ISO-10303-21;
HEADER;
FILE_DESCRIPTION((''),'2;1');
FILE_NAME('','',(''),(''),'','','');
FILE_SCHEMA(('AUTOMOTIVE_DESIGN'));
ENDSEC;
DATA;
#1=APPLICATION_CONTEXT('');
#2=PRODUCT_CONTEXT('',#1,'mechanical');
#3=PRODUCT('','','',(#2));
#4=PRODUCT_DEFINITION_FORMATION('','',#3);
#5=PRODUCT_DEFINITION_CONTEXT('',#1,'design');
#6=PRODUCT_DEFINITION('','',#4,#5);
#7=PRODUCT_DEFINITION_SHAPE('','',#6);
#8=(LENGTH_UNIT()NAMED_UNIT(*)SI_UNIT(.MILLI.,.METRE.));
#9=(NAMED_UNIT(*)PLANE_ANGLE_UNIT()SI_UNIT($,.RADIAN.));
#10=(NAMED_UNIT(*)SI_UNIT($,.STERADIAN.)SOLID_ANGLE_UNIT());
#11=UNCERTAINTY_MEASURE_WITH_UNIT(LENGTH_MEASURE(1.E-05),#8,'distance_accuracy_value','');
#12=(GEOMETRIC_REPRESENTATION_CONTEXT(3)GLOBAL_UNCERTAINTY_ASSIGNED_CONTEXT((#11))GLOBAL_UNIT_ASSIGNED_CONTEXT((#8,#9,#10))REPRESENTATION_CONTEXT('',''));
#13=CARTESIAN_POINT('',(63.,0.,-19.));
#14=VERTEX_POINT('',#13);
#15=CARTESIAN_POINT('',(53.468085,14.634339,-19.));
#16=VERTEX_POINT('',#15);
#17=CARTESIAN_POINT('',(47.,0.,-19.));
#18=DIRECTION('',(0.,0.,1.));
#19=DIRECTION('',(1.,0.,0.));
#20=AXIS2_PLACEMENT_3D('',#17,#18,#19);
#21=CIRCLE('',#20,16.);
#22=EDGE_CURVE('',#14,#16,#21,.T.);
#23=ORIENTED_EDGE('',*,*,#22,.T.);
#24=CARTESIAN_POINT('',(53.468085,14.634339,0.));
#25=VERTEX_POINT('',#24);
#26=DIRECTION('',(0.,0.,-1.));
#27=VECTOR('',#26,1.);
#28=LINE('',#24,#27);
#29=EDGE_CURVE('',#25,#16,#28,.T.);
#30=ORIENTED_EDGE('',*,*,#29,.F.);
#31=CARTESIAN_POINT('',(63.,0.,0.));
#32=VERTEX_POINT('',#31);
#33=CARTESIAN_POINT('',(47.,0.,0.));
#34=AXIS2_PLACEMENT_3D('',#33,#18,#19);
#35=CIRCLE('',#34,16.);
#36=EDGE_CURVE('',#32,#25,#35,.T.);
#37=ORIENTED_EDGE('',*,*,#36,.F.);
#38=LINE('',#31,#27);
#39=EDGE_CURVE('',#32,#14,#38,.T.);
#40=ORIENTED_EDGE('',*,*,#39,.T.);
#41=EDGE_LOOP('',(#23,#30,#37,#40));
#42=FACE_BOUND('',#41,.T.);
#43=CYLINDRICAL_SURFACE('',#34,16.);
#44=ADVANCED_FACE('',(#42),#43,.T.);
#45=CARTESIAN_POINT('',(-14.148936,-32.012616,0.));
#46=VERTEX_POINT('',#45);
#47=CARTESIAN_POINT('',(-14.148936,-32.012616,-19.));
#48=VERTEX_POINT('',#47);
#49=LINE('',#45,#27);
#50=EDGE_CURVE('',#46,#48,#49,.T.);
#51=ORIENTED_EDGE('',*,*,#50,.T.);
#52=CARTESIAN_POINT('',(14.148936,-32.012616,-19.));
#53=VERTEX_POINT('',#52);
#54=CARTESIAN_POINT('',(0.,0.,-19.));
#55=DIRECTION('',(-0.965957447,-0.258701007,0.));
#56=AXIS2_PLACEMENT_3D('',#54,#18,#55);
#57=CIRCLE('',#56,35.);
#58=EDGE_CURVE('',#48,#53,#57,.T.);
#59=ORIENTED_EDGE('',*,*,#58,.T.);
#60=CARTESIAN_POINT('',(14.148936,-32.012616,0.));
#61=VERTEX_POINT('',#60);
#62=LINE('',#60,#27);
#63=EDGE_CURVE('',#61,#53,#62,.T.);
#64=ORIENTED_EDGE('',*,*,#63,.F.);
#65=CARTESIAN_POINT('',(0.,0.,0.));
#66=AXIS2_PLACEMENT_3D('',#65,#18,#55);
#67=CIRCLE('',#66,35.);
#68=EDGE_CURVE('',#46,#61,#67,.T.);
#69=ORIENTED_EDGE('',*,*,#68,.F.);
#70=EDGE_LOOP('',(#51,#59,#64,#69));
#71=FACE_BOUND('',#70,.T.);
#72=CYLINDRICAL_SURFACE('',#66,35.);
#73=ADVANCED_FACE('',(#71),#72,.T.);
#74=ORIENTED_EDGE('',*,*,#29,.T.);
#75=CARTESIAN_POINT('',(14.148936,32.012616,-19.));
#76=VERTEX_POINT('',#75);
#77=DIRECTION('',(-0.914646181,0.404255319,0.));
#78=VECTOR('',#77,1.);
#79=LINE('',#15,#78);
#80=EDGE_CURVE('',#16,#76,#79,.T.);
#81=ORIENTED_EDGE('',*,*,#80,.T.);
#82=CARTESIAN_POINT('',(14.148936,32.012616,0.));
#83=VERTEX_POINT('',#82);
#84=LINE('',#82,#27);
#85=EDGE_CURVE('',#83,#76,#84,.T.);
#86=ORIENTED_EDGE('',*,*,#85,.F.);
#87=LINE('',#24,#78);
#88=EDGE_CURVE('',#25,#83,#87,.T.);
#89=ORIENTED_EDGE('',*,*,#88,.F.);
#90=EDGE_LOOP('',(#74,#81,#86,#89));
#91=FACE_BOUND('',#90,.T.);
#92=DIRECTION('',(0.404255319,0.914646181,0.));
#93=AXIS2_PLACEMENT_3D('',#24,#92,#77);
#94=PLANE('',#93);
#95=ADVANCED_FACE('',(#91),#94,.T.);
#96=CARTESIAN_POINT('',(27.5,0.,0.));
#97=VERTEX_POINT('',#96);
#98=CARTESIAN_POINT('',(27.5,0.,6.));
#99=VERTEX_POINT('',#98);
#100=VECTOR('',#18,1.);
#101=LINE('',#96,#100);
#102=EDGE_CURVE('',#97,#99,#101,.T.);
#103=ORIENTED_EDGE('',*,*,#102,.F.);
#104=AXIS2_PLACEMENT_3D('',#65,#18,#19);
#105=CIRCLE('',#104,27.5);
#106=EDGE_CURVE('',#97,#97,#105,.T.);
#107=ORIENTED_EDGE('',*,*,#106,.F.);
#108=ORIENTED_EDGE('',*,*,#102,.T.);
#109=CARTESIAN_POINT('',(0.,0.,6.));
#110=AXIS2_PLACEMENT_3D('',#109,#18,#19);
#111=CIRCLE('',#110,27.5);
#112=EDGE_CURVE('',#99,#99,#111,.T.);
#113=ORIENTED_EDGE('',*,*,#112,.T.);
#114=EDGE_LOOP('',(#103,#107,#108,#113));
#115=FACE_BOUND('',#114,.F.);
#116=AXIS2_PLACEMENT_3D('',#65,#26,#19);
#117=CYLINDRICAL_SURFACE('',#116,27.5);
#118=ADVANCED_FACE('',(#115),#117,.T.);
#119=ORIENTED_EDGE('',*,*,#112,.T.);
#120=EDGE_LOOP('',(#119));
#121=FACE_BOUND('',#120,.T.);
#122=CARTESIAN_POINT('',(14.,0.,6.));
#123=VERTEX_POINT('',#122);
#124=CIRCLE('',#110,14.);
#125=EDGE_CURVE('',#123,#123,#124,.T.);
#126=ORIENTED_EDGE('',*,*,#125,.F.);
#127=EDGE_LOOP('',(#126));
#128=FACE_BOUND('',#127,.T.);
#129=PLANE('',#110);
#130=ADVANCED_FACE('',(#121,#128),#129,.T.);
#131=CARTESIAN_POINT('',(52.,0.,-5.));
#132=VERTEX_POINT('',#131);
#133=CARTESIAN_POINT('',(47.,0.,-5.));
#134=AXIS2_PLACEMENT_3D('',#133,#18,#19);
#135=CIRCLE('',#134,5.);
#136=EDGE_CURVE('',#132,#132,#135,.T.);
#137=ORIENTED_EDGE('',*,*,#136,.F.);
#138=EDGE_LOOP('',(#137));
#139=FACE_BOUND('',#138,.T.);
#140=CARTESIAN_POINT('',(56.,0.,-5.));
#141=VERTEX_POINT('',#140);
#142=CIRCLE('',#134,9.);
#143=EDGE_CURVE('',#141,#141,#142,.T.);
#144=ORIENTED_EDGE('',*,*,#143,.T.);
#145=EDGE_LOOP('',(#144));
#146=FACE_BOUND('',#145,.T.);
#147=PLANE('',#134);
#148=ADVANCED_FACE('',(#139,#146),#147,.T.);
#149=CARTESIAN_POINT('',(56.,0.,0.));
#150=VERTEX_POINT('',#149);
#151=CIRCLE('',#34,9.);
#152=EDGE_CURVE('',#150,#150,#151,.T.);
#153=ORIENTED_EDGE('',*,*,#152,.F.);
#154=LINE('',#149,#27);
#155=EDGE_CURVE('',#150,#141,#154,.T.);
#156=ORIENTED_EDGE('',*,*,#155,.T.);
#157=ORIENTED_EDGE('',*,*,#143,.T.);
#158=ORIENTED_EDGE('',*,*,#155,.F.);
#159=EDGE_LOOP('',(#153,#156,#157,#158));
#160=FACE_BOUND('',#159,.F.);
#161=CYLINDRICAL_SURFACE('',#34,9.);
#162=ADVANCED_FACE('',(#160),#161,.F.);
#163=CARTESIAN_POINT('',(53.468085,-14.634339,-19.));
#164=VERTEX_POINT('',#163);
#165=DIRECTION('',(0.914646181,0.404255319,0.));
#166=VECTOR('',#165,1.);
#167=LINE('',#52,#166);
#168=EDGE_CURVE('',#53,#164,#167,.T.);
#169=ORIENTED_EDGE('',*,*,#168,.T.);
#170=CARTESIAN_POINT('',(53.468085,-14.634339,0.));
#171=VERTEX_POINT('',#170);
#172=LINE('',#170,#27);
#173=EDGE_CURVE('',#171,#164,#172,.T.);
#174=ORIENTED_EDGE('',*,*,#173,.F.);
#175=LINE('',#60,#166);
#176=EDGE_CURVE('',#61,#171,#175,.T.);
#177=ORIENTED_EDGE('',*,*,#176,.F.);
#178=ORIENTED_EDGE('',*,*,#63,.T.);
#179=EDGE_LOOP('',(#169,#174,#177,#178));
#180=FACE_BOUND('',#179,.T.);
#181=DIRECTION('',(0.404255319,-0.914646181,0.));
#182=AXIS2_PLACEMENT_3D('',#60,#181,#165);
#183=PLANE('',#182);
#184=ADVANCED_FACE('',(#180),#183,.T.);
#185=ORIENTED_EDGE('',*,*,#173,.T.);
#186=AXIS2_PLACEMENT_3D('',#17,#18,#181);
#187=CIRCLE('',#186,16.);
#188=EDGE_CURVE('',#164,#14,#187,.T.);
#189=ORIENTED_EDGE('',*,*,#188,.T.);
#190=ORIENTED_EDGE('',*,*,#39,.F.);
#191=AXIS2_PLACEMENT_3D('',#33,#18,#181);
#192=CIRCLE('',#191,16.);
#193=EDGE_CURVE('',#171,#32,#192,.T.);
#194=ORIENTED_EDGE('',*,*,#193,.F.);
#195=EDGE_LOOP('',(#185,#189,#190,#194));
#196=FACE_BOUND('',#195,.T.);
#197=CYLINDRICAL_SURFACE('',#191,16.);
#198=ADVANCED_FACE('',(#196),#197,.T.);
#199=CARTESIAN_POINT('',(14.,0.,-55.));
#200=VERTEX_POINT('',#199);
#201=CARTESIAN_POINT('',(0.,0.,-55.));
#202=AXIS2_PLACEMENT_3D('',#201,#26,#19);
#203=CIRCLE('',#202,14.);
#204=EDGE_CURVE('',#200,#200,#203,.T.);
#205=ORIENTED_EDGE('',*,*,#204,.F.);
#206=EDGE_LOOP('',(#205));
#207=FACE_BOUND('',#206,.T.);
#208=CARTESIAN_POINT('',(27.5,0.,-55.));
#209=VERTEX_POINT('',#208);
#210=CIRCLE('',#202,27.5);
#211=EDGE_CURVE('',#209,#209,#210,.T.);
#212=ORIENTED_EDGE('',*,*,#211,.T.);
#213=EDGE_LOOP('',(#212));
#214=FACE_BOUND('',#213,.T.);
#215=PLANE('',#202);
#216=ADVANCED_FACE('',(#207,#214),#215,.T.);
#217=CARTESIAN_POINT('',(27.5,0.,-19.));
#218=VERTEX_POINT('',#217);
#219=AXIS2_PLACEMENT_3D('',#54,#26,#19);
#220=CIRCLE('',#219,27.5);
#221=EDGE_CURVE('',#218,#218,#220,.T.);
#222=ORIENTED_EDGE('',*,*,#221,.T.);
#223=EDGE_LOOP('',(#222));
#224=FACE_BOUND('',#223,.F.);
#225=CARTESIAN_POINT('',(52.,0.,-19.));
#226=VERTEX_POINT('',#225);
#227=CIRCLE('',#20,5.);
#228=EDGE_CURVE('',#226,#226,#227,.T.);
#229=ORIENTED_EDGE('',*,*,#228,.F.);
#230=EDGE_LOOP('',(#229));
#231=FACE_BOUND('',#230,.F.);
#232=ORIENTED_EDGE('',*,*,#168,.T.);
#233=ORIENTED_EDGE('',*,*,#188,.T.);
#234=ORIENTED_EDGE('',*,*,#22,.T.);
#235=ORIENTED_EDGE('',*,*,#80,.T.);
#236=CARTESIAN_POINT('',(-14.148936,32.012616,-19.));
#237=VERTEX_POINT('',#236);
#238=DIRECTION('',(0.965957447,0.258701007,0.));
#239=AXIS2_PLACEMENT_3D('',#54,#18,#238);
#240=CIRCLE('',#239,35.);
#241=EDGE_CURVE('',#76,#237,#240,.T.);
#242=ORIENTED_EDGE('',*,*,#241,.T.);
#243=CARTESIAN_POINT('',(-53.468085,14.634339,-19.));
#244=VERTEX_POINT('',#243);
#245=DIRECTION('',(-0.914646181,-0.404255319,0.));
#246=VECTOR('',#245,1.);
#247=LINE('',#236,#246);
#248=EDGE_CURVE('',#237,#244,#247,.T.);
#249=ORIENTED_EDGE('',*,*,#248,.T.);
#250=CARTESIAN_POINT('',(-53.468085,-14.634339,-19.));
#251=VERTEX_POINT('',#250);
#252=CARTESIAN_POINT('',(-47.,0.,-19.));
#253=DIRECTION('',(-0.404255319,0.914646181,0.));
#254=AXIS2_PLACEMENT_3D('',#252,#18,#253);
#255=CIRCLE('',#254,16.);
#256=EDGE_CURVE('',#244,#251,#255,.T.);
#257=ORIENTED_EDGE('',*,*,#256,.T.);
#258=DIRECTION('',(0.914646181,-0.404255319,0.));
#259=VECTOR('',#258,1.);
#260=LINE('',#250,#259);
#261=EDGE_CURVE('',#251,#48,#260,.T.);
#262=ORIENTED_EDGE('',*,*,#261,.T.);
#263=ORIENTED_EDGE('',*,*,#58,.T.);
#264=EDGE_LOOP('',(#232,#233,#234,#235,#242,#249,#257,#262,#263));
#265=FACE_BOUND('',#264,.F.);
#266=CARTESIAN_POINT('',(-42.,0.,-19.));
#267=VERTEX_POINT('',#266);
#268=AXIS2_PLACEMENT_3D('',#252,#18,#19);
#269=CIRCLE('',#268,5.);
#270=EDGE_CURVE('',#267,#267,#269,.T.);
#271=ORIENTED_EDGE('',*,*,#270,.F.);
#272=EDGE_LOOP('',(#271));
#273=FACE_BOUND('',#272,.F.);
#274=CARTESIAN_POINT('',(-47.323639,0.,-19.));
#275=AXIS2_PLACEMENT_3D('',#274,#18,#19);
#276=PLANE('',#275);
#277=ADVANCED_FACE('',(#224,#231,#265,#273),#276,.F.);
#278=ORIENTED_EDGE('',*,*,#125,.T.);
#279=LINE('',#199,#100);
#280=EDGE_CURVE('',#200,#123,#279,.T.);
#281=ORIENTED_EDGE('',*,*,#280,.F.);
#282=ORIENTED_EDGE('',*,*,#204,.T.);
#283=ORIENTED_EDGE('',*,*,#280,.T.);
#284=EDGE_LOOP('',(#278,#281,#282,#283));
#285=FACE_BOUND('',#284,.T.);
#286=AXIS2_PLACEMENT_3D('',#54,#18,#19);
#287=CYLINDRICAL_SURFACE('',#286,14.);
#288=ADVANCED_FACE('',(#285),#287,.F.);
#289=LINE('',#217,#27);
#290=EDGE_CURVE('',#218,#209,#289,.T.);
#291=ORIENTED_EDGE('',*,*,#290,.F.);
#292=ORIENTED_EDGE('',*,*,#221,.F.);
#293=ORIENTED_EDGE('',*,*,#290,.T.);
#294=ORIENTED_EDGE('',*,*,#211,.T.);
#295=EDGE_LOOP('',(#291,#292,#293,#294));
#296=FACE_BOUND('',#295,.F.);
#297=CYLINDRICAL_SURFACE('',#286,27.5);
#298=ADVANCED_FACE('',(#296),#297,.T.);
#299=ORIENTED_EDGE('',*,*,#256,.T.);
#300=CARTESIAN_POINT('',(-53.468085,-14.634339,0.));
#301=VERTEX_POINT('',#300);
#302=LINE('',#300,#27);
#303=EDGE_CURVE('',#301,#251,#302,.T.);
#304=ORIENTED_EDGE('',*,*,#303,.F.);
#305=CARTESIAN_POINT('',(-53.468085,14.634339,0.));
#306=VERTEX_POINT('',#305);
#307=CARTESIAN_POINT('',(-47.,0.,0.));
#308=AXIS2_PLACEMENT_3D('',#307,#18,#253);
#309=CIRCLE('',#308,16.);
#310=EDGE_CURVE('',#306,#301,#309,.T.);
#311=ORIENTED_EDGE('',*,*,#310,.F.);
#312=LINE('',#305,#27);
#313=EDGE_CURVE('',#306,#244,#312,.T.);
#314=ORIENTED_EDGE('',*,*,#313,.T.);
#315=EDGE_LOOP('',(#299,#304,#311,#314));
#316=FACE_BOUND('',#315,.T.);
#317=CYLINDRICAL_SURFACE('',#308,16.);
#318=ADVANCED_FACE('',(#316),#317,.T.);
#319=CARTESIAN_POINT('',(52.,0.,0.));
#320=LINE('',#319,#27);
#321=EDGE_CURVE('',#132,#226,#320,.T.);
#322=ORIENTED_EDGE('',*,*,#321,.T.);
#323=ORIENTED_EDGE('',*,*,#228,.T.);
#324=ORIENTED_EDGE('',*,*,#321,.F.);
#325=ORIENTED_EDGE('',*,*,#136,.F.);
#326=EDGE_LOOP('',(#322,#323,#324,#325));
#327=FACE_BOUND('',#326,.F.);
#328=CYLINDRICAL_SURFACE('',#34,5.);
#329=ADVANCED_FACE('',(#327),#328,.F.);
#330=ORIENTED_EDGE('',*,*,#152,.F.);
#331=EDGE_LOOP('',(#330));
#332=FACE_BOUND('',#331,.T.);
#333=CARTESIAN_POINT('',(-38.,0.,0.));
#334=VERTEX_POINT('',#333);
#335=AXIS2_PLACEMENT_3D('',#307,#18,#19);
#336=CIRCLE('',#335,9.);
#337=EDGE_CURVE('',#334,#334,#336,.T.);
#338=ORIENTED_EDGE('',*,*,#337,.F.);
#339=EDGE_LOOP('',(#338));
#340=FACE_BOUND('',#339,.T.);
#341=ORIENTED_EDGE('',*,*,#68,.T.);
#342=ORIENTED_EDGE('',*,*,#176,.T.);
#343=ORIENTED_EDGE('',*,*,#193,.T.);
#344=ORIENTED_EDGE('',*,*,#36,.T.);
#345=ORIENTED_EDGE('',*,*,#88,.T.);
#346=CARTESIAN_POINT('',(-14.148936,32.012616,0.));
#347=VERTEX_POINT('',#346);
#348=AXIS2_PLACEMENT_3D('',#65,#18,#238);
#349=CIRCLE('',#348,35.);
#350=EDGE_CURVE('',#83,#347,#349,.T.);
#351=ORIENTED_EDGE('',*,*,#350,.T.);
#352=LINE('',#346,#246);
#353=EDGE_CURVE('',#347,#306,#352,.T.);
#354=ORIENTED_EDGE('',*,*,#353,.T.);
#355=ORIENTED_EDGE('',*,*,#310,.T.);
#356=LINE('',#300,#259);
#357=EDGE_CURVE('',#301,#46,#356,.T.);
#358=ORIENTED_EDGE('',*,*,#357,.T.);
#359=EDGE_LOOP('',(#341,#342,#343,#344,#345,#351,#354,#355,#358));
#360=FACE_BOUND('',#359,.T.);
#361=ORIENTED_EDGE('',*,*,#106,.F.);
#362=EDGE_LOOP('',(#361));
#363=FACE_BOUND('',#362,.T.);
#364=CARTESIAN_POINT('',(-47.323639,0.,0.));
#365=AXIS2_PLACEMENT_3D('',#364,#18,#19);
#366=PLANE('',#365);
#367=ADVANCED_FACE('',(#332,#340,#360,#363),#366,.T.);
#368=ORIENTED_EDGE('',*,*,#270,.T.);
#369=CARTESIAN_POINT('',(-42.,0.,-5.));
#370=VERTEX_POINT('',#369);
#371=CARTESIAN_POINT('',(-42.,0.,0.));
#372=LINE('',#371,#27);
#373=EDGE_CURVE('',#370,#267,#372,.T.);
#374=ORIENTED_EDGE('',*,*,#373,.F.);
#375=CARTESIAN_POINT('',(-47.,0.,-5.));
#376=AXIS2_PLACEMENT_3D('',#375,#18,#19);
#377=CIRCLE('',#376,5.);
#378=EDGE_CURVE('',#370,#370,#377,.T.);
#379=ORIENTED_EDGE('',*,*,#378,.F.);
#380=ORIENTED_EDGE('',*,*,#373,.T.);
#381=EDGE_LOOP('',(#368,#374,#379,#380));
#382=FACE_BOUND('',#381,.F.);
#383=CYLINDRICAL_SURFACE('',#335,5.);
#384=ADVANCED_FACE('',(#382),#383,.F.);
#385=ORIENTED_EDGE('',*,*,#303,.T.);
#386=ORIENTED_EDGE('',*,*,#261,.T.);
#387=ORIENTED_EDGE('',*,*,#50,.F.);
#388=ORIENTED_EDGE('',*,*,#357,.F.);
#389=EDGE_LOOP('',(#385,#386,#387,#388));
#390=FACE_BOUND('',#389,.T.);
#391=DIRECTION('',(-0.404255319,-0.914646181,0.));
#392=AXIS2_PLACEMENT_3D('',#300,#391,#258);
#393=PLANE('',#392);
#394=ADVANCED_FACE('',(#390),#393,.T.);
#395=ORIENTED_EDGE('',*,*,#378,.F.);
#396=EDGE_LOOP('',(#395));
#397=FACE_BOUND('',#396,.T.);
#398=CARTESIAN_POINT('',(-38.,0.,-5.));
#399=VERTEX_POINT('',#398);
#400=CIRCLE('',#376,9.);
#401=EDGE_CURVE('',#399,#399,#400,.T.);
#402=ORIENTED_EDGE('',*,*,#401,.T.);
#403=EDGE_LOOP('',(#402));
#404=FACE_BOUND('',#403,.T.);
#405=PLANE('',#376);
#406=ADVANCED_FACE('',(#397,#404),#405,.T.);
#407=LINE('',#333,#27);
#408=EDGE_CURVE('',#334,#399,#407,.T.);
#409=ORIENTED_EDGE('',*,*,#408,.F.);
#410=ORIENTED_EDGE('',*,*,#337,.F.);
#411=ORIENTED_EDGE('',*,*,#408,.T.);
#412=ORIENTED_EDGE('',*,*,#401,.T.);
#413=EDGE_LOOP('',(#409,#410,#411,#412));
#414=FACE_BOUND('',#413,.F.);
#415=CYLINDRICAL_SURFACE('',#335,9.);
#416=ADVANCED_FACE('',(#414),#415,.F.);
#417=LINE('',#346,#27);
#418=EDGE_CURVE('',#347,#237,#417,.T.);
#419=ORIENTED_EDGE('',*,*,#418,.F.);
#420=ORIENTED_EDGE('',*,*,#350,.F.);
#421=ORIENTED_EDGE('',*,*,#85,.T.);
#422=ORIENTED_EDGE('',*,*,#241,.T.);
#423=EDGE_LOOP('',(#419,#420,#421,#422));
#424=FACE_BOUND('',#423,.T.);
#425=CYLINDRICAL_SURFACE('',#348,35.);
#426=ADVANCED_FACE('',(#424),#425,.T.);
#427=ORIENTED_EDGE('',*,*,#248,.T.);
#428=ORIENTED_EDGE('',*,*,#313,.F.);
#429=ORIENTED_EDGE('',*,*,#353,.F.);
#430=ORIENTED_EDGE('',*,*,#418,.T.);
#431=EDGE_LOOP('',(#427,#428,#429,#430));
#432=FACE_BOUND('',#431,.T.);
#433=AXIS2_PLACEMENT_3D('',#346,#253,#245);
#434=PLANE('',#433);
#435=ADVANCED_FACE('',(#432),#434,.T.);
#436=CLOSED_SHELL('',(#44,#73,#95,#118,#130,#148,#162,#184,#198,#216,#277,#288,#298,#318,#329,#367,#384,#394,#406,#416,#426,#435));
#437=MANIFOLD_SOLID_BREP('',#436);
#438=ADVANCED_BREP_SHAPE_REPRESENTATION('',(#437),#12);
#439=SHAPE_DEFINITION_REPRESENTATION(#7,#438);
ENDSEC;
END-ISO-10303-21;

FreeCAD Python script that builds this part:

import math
import FreeCAD as App
import Part
import Sketcher
Q = App.Units.Quantity

doc = App.newDocument("Part")
body = doc.addObject("PartDesign::Body", "Body")

# Sketch on XY plane
sketch1 = body.newObject("Sketcher::SketchObject", "Sketch")
sketch1.AttachmentSupport = (doc.getObject("XY_Plane"), [""])
sketch1.MapMode = "FlatFace"
sketch1.addGeometry(Part.LineSegment(App.Vector(-14, 32, 0), App.Vector(-53, 15, 0)), False)
sketch1.addGeometry(Part.ArcOfCircle(Part.Circle(App.Vector(-47, 0, 0), App.Vector(0, 0, 1), 16), math.radians(114), math.radians(246)), False)
sketch1.addGeometry(Part.LineSegment(App.Vector(-53, -15, 0), App.Vector(-14, -32, 0)), False)
sketch1.addGeometry(Part.ArcOfCircle(Part.Circle(App.Vector(0, 0, 0), App.Vector(0, 0, 1), 35), math.radians(-114), math.radians(-66)), False)
sketch1.addGeometry(Part.LineSegment(App.Vector(14, -32, 0), App.Vector(53, -15, 0)), False)
sketch1.addGeometry(Part.ArcOfCircle(Part.Circle(App.Vector(47, 0, 0), App.Vector(0, 0, 1), 16), math.radians(-66), math.radians(0)), False)
sketch1.addGeometry(Part.ArcOfCircle(Part.Circle(App.Vector(47, 0, 0), App.Vector(0, 0, 1), 16), math.radians(0), math.radians(66)), False)
sketch1.addGeometry(Part.LineSegment(App.Vector(53, 15, 0), App.Vector(14, 32, 0)), False)
sketch1.addGeometry(Part.ArcOfCircle(Part.Circle(App.Vector(0, 0, 0), App.Vector(0, 0, 1), 35), math.radians(66), math.radians(114)), False)
sketch1.addGeometry(Part.Circle(App.Vector(0, 0, 0), App.Vector(0, 0, 1), 14), False)
sketch1.addConstraint(Sketcher.Constraint("Tangent", 0, 2, 1, 1))
sketch1.addConstraint(Sketcher.Constraint("Tangent", 1, 2, 2, 1))
sketch1.addConstraint(Sketcher.Constraint("Tangent", 2, 2, 3, 1))
sketch1.addConstraint(Sketcher.Constraint("Tangent", 3, 2, 4, 1))
sketch1.addConstraint(Sketcher.Constraint("Tangent", 4, 2, 5, 1))
sketch1.addConstraint(Sketcher.Constraint("Tangent", 5, 2, 6, 1))
sketch1.addConstraint(Sketcher.Constraint("Tangent", 6, 2, 7, 1))
sketch1.addConstraint(Sketcher.Constraint("Tangent", 7, 2, 8, 1))
sketch1.addConstraint(Sketcher.Constraint("Tangent", 8, 2, 0, 1))
sketch1.addConstraint(Sketcher.Constraint("Coincident", 3, 3, -1, 1))
sketch1.addConstraint(Sketcher.Constraint("Coincident", 8, 3, -1, 1))
sketch1.addConstraint(Sketcher.Constraint("Coincident", 9, 3, -1, 1))
sketch1.addConstraint(Sketcher.Constraint("Equal", 1, 5))
sketch1.addConstraint(Sketcher.Constraint("Equal", 5, 6))
sketch1.addConstraint(Sketcher.Constraint("Equal", 3, 8))
sketch1.addConstraint(Sketcher.Constraint("Symmetric", 1, 3, 5, 3, -1, 1))
sketch1.addConstraint(Sketcher.Constraint("PointOnObject", 1, 3, -1))
sketch1.addConstraint(Sketcher.Constraint("PointOnObject", 5, 2, -1))
sketch1.addConstraint(Sketcher.Constraint("Diameter", 9, Q("28 mm")))
sketch1.addConstraint(Sketcher.Constraint("Radius", 1, Q("16 mm")))
sketch1.addConstraint(Sketcher.Constraint("Radius", 3, Q("35 mm")))
sketch1.addConstraint(Sketcher.Constraint("DistanceX", 1, 3, -1, 1, Q("47 mm")))
pad1 = body.newObject("PartDesign::Pad", "Pad")
pad1.Profile = sketch1
pad1.Length = 19
pad1.Reversed = True

# Sketch on XY plane
sketch2 = body.newObject("Sketcher::SketchObject", "Sketch001")
sketch2.AttachmentSupport = (doc.getObject("XY_Plane"), [""])
sketch2.MapMode = "FlatFace"
sketch2.addGeometry(Part.Circle(App.Vector(0, 0, 0), App.Vector(0, 0, 1), 28), False)
sketch2.addGeometry(Part.Circle(App.Vector(0, 0, 0), App.Vector(0, 0, 1), 14), False)
sketch2.addConstraint(Sketcher.Constraint("Coincident", 0, 3, -1, 1))
sketch2.addConstraint(Sketcher.Constraint("Coincident", 1, 3, -1, 1))
sketch2.addConstraint(Sketcher.Constraint("Diameter", 0, Q("55 mm")))
sketch2.addConstraint(Sketcher.Constraint("Diameter", 1, Q("28 mm")))
pad2 = body.newObject("PartDesign::Pad", "Pad001")
pad2.Profile = sketch2
pad2.Length = 6

# Sketch on XY plane
sketch3 = body.newObject("Sketcher::SketchObject", "Sketch002")
sketch3.AttachmentSupport = (doc.getObject("XY_Plane"), [""])
sketch3.MapMode = "FlatFace"
sketch3.AttachmentOffset = App.Placement(App.Vector(0, 0, -19), App.Rotation())
sketch3.addGeometry(Part.Circle(App.Vector(0, 0, 0), App.Vector(0, 0, 1), 28), False)
sketch3.addGeometry(Part.Circle(App.Vector(0, 0, 0), App.Vector(0, 0, 1), 14), False)
sketch3.addConstraint(Sketcher.Constraint("Coincident", 0, 3, -1, 1))
sketch3.addConstraint(Sketcher.Constraint("Coincident", 1, 3, -1, 1))
sketch3.addConstraint(Sketcher.Constraint("Diameter", 0, Q("55 mm")))
sketch3.addConstraint(Sketcher.Constraint("Diameter", 1, Q("28 mm")))
pad3 = body.newObject("PartDesign::Pad", "Pad002")
pad3.Profile = sketch3
pad3.Length = 36
pad3.Reversed = True

# Sketch on XY plane
sketch4 = body.newObject("Sketcher::SketchObject", "Sketch003")
sketch4.AttachmentSupport = (doc.getObject("XY_Plane"), [""])
sketch4.MapMode = "FlatFace"
sketch4.addGeometry(Part.Circle(App.Vector(-47, 0, 0), App.Vector(0, 0, 1), 5), False)
sketch4.addGeometry(Part.Circle(App.Vector(47, 0, 0), App.Vector(0, 0, 1), 5), False)
sketch4.addConstraint(Sketcher.Constraint("Equal", 0, 1))
sketch4.addConstraint(Sketcher.Constraint("Symmetric", 0, 3, 1, 3, -1, 1))
sketch4.addConstraint(Sketcher.Constraint("PointOnObject", 0, 3, -1))
sketch4.addConstraint(Sketcher.Constraint("Diameter", 0, Q("10 mm")))
sketch4.addConstraint(Sketcher.Constraint("DistanceX", 0, 3, -1, 1, Q("47 mm")))
pocket1 = body.newObject("PartDesign::Pocket", "Pocket")
pocket1.Profile = sketch4
pocket1.Length = 25

# Sketch on XY plane
sketch5 = body.newObject("Sketcher::SketchObject", "Sketch004")
sketch5.AttachmentSupport = (doc.getObject("XY_Plane"), [""])
sketch5.MapMode = "FlatFace"
sketch5.addGeometry(Part.Circle(App.Vector(-47, 0, 0), App.Vector(0, 0, 1), 9), False)
sketch5.addGeometry(Part.Circle(App.Vector(47, 0, 0), App.Vector(0, 0, 1), 9), False)
sketch5.addConstraint(Sketcher.Constraint("Equal", 0, 1))
sketch5.addConstraint(Sketcher.Constraint("Symmetric", 0, 3, 1, 3, -1, 1))
sketch5.addConstraint(Sketcher.Constraint("PointOnObject", 0, 3, -1))
sketch5.addConstraint(Sketcher.Constraint("Diameter", 0, Q("18 mm")))
sketch5.addConstraint(Sketcher.Constraint("DistanceX", 0, 3, -1, 1, Q("47 mm")))
pocket2 = body.newObject("PartDesign::Pocket", "Pocket001")
pocket2.Profile = sketch5
pocket2.Length = 5

doc.recompute()
